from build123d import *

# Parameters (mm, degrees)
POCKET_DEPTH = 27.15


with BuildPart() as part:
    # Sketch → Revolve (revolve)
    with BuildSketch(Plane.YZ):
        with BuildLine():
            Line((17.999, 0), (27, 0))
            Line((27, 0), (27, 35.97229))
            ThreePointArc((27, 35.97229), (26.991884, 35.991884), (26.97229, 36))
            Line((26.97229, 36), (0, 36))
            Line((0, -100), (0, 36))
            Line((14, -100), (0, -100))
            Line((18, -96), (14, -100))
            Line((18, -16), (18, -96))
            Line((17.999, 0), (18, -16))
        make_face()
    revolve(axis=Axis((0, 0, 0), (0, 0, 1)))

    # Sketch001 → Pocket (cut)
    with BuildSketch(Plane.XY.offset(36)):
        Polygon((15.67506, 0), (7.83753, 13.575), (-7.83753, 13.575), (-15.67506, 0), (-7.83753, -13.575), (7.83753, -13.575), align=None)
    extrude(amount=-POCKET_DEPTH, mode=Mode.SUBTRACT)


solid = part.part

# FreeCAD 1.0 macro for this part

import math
import FreeCAD as App
import Part
import Sketcher
Q = App.Units.Quantity

doc = App.newDocument("Part")
body = doc.addObject("PartDesign::Body", "Body")

sketch1 = body.newObject("Sketcher::SketchObject", "Sketch")
sketch1.AttachmentSupport = (doc.getObject("YZ_Plane"), [""])
sketch1.MapMode = "FlatFace"
sketch1.addGeometry(Part.LineSegment(App.Vector(17.999, 0, 0), App.Vector(27, 0, 0)), False)
sketch1.addGeometry(Part.LineSegment(App.Vector(27, 0, 0), App.Vector(27, 35.97229, 0)), False)
sketch1.addGeometry(Part.ArcOfCircle(Part.Circle(App.Vector(26.97229, 35.97229, 0), App.Vector(0, 0, 1), 0.02771), math.radians(-0.000502), math.radians(90.000502)), False)
sketch1.addGeometry(Part.LineSegment(App.Vector(26.97229, 36, 0), App.Vector(0, 36, 0)), False)
sketch1.addGeometry(Part.LineSegment(App.Vector(0, 36, 0), App.Vector(0, -100, 0)), False)
sketch1.addGeometry(Part.LineSegment(App.Vector(0, -100, 0), App.Vector(14, -100, 0)), False)
sketch1.addGeometry(Part.LineSegment(App.Vector(14, -100, 0), App.Vector(18, -96, 0)), False)
sketch1.addGeometry(Part.LineSegment(App.Vector(18, -96, 0), App.Vector(18, -16, 0)), False)
sketch1.addGeometry(Part.LineSegment(App.Vector(18, -16, 0), App.Vector(17.999, 0, 0)), False)
sketch1.addConstraint(Sketcher.Constraint("Coincident", 0, 2, 1, 1))
sketch1.addConstraint(Sketcher.Constraint("Coincident", 1, 2, 2, 1))
sketch1.addConstraint(Sketcher.Constraint("Coincident", 2, 2, 3, 1))
sketch1.addConstraint(Sketcher.Constraint("Coincident", 3, 2, 4, 1))
sketch1.addConstraint(Sketcher.Constraint("Coincident", 4, 2, 5, 1))
sketch1.addConstraint(Sketcher.Constraint("Coincident", 5, 2, 6, 1))
sketch1.addConstraint(Sketcher.Constraint("Coincident", 6, 2, 7, 1))
sketch1.addConstraint(Sketcher.Constraint("Coincident", 7, 2, 8, 1))
sketch1.addConstraint(Sketcher.Constraint("Coincident", 8, 2, 0, 1))
sketch1.addConstraint(Sketcher.Constraint("Horizontal", 0))
sketch1.addConstraint(Sketcher.Constraint("Vertical", 1))
sketch1.addConstraint(Sketcher.Constraint("Horizontal", 3))
sketch1.addConstraint(Sketcher.Constraint("Vertical", 4))
sketch1.addConstraint(Sketcher.Constraint("Horizontal", 5))
sketch1.addConstraint(Sketcher.Constraint("Vertical", 7))
sketch1.addConstraint(Sketcher.Constraint("PointOnObject", 0, 2, -1))
sketch1.addConstraint(Sketcher.Constraint("PointOnObject", 3, 2, -2))
sketch1.addConstraint(Sketcher.Constraint("Horizontal", 2, 3, 1, 2))
sketch1.addConstraint(Sketcher.Constraint("DistanceX", 5, 1, 5, 2, 14.0))
sketch1.addConstraint(Sketcher.Constraint("DistanceY", 4, 2, 4, 1, 136.0))
sketch1.addConstraint(Sketcher.Constraint("DistanceY", 7, 1, 7, 2, 80.0))
sketch1.addConstraint(Sketcher.Constraint("Angle", 6, Q("45 deg")))
sketch1.addConstraint(Sketcher.Constraint("Distance", 8, 16.0))
sketch1.addConstraint(Sketcher.Constraint("DistanceX", -1, 1, 0, 2, 27.0))
sketch1.addConstraint(Sketcher.Constraint("DistanceY", -1, 1, 2, 2, 36.0))
sketch1.addConstraint(Sketcher.Constraint("DistanceX", 0, 1, 0, 2, 9.001))
sketch1.addConstraint(Sketcher.Constraint("Radius", 2, 0.02771))
sketch1.addConstraint(Sketcher.Constraint("DistanceX", 3, 2, 3, 1, 26.97229))
revolution = body.newObject("PartDesign::Revolution", "Revolution")
revolution.Profile = sketch1
revolution.ReferenceAxis = (sketch1, ["V_Axis"])
revolution.Angle = 360

sketch2 = body.newObject("Sketcher::SketchObject", "Sketch001")
sketch2.AttachmentSupport = (doc.getObject("XY_Plane"), [""])
sketch2.MapMode = "FlatFace"
sketch2.AttachmentOffset = App.Placement(App.Vector(0, 0, 36), App.Rotation())
sketch2.addGeometry(Part.LineSegment(App.Vector(15.67506, 0, 0), App.Vector(7.83753, 13.575, 0)), False)
sketch2.addGeometry(Part.LineSegment(App.Vector(7.83753, 13.575, 0), App.Vector(-7.83753, 13.575, 0)), False)
sketch2.addGeometry(Part.LineSegment(App.Vector(-7.83753, 13.575, 0), App.Vector(-15.67506, 0, 0)), False)
sketch2.addGeometry(Part.LineSegment(App.Vector(-15.67506, 0, 0), App.Vector(-7.83753, -13.575, 0)), False)
sketch2.addGeometry(Part.LineSegment(App.Vector(-7.83753, -13.575, 0), App.Vector(7.83753, -13.575, 0)), False)
sketch2.addGeometry(Part.LineSegment(App.Vector(7.83753, -13.575, 0), App.Vector(15.67506, 0, 0)), False)
sketch2.addConstraint(Sketcher.Constraint("Coincident", 0, 2, 1, 1))
sketch2.addConstraint(Sketcher.Constraint("Coincident", 1, 2, 2, 1))
sketch2.addConstraint(Sketcher.Constraint("Coincident", 2, 2, 3, 1))
sketch2.addConstraint(Sketcher.Constraint("Coincident", 3, 2, 4, 1))
sketch2.addConstraint(Sketcher.Constraint("Coincident", 4, 2, 5, 1))
sketch2.addConstraint(Sketcher.Constraint("Coincident", 5, 2, 0, 1))
sketch2.addConstraint(Sketcher.Constraint("Horizontal", 1))
sketch2.addConstraint(Sketcher.Constraint("Horizontal", 4))
sketch2.addConstraint(Sketcher.Constraint("Symmetric", 0, 2, 3, 2, -1, 1))
sketch2.addConstraint(Sketcher.Constraint("Symmetric", 2, 2, 5, 2, -1, 1))
sketch2.addConstraint(Sketcher.Constraint("PointOnObject", 2, 2, -1))
sketch2.addConstraint(Sketcher.Constraint("Parallel", 2, 5))
sketch2.addConstraint(Sketcher.Constraint("Vertical", 1, 2, 3, 2))
sketch2.addConstraint(Sketcher.Constraint("Angle", 0, Q("120 deg")))
sketch2.addConstraint(Sketcher.Constraint("DistanceY", 3, 2, 1, 2, 27.15))
sketch2.addConstraint(Sketcher.Constraint("DistanceX", 1, 2, 1, 1, 15.67506))
pocket1 = body.newObject("PartDesign::Pocket", "Pocket")
pocket1.Profile = sketch2
pocket1.Length = 27.15

doc.recompute()
